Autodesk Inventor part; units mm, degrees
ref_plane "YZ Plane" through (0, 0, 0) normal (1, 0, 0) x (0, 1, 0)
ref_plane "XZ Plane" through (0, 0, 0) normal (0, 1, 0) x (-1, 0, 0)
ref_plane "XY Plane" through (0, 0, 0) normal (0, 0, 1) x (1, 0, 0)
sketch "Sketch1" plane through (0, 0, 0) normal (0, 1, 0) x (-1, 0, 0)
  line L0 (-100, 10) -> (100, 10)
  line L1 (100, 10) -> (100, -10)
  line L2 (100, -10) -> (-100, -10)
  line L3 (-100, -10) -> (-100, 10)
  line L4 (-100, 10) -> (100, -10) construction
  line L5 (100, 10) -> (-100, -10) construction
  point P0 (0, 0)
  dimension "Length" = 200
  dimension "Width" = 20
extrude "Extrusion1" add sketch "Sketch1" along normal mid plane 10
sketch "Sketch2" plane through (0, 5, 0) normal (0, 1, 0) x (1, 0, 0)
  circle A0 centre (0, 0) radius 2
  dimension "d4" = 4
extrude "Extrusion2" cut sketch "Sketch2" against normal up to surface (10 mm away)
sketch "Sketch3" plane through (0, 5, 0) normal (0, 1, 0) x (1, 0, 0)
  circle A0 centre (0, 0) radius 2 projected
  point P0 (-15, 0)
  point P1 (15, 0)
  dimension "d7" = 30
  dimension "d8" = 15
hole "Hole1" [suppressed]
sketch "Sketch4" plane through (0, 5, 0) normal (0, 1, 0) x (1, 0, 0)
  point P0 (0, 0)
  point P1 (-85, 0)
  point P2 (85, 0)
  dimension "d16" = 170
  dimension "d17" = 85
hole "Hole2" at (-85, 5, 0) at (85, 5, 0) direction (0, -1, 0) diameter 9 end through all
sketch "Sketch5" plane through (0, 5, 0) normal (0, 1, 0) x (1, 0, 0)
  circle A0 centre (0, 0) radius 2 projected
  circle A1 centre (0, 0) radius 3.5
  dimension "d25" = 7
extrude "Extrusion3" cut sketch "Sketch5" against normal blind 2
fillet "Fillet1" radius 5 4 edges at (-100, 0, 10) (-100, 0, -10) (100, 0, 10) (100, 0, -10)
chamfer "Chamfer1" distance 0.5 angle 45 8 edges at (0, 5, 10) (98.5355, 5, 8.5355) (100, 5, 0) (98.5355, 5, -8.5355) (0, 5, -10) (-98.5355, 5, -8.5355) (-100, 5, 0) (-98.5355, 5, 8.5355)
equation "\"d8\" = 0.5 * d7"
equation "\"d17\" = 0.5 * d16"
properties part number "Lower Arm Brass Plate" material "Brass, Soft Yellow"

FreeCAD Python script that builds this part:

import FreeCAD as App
import Part
import Sketcher

V = App.Vector


def edges_at(feature, points):
    """Names of the edges that pass closest to the given points."""
    edges = feature.Shape.Edges
    near = lambda p: min(range(len(edges)), key=lambda i: edges[i].distToShape(Part.Vertex(*p))[0])
    return sorted({f"Edge{near(p) + 1}" for p in points})

doc = App.newDocument("Part")
params = doc.addObject("Spreadsheet::Sheet", "Params")
for row, (alias, value) in enumerate([
    ("sketch1_width", "200 mm"),
    ("sketch1_height", "20 mm"),
    ("pad1_length", "10 mm"),
    ("sketch2_diameter", "4 mm"),
    ("pocket1_length", "10 mm"),
    ("sketch3_diameter", "9 mm"),
    ("hole_diameter", "9 mm"),
    ("sketch4_diameter", "7 mm"),
    ("sketch4_diameter2", "4 mm"),
    ("pocket2_length", "2 mm"),
    ("fillet_radius", "5 mm"),
    ("chamfer_size", "0.5 mm"),
], start=1):
    params.set(f"A{row}", alias)
    params.set(f"B{row}", "=" + value)
    params.setAlias(f"B{row}", alias)

body = doc.addObject("PartDesign::Body", "Body")

sketch1 = doc.addObject("Sketcher::SketchObject", "Sketch")
body.addObject(sketch1)
sketch1.AttachmentSupport = (doc.XZ_Plane, [""])
sketch1.MapMode = "FlatFace"
sketch1.addGeometry([
    Part.LineSegment(V(-100, 10, 0), V(100, 10, 0)),
    Part.LineSegment(V(100, 10, 0), V(100, -10, 0)),
    Part.LineSegment(V(100, -10, 0), V(-100, -10, 0)),
    Part.LineSegment(V(-100, -10, 0), V(-100, 10, 0)),
], False)
sketch1.addConstraint([
    Sketcher.Constraint("Coincident", 0, 2, 1, 1),
    Sketcher.Constraint("Coincident", 1, 2, 2, 1),
    Sketcher.Constraint("Coincident", 2, 2, 3, 1),
    Sketcher.Constraint("Coincident", 3, 2, 0, 1),
    Sketcher.Constraint("Horizontal", 0),
    Sketcher.Constraint("Vertical", 1),
    Sketcher.Constraint("Horizontal", 2),
    Sketcher.Constraint("Vertical", 3),
    Sketcher.Constraint("Symmetric", 0, 2, 2, 2, -1, 1),
    Sketcher.Constraint("DistanceX", 0, 1, 0, 2, 200.0),
    Sketcher.Constraint("DistanceY", 1, 2, 1, 1, 20.0),
])
sketch1.setExpression("Constraints[9]", "Params.sketch1_width")
sketch1.setExpression("Constraints[10]", "Params.sketch1_height")
pad1 = doc.addObject("PartDesign::Pad", "Pad")
body.addObject(pad1)
pad1.Profile = sketch1
pad1.setExpression("Length", "Params.pad1_length")
pad1.Midplane = True

sketch2 = doc.addObject("Sketcher::SketchObject", "Sketch001")
body.addObject(sketch2)
sketch2.AttachmentSupport = (doc.XZ_Plane, [""])
sketch2.MapMode = "FlatFace"
sketch2.AttachmentOffset = App.Placement(V(0, 0, -5), App.Rotation())
sketch2.addGeometry(Part.Circle(V(0, 0, 0), V(0, 0, 1), 2), False)
sketch2.addConstraint([
    Sketcher.Constraint("Coincident", 0, 3, -1, 1),
    Sketcher.Constraint("Diameter", 0, 4.0),
])
sketch2.setExpression("Constraints[1]", "Params.sketch2_diameter")
pocket1 = doc.addObject("PartDesign::Pocket", "Pocket")
body.addObject(pocket1)
pocket1.Profile = sketch2
pocket1.setExpression("Length", "Params.pocket1_length")
pocket1.Reversed = True

sketch3 = doc.addObject("Sketcher::SketchObject", "Sketch002")
body.addObject(sketch3)
sketch3.AttachmentSupport = (doc.XZ_Plane, [""])
sketch3.MapMode = "FlatFace"
sketch3.AttachmentOffset = App.Placement(V(0, 0, -5), App.Rotation())
sketch3.addGeometry([
    Part.Circle(V(-85, 0, 0), V(0, 0, 1), 4.5),
    Part.Circle(V(85, 0, 0), V(0, 0, 1), 4.5),
], False)
sketch3.addConstraint([
    Sketcher.Constraint("Equal", 0, 1),
    Sketcher.Constraint("Symmetric", 0, 3, 1, 3, -1, 1),
    Sketcher.Constraint("PointOnObject", 0, 3, -1),
    Sketcher.Constraint("Diameter", 0, 9.0),
    Sketcher.Constraint("DistanceX", 0, 3, -1, 1, 85.0),
])
sketch3.setExpression("Constraints[3]", "Params.sketch3_diameter")
doc.recompute()
hole = doc.addObject("PartDesign::Hole", "Hole")
body.addObject(hole)
hole.Profile = sketch3
hole.ThreadType = "None"
hole.setExpression("Diameter", "Params.hole_diameter")
hole.DepthType = "ThroughAll"
hole.Reversed = True

sketch4 = doc.addObject("Sketcher::SketchObject", "Sketch003")
body.addObject(sketch4)
sketch4.AttachmentSupport = (doc.XZ_Plane, [""])
sketch4.MapMode = "FlatFace"
sketch4.AttachmentOffset = App.Placement(V(0, 0, -5), App.Rotation())
sketch4.addGeometry([
    Part.Circle(V(0, 0, 0), V(0, 0, 1), 3.5),
    Part.Circle(V(0, 0, 0), V(0, 0, 1), 2),
], False)
sketch4.addConstraint([
    Sketcher.Constraint("Coincident", 0, 3, -1, 1),
    Sketcher.Constraint("Coincident", 1, 3, -1, 1),
    Sketcher.Constraint("Diameter", 0, 7.0),
    Sketcher.Constraint("Diameter", 1, 4.0),
])
sketch4.setExpression("Constraints[2]", "Params.sketch4_diameter")
sketch4.setExpression("Constraints[3]", "Params.sketch4_diameter2")
pocket2 = doc.addObject("PartDesign::Pocket", "Pocket001")
body.addObject(pocket2)
pocket2.Profile = sketch4
pocket2.setExpression("Length", "Params.pocket2_length")
pocket2.Reversed = True
doc.recompute()

fillet = doc.addObject("PartDesign::Fillet", "Fillet")
body.addObject(fillet)
fillet.Base = (pocket2, edges_at(pocket2, [
    (-100, 0, 10),
    (-100, 0, -10),
    (100, 0, 10),
    (100, 0, -10),
]))
fillet.setExpression("Radius", "Params.fillet_radius")
doc.recompute()

chamfer = doc.addObject("PartDesign::Chamfer", "Chamfer")
body.addObject(chamfer)
chamfer.Base = (fillet, edges_at(fillet, [
    (0, 5, 10),
    (98.535, 5, 8.536),
    (100, 5, 0),
    (98.535, 5, -8.536),
    (0, 5, -10),
    (-98.535, 5, -8.536),
    (-100, 5, 0),
    (-98.535, 5, 8.536),
]))
chamfer.setExpression("Size", "Params.chamfer_size")

doc.recompute()
